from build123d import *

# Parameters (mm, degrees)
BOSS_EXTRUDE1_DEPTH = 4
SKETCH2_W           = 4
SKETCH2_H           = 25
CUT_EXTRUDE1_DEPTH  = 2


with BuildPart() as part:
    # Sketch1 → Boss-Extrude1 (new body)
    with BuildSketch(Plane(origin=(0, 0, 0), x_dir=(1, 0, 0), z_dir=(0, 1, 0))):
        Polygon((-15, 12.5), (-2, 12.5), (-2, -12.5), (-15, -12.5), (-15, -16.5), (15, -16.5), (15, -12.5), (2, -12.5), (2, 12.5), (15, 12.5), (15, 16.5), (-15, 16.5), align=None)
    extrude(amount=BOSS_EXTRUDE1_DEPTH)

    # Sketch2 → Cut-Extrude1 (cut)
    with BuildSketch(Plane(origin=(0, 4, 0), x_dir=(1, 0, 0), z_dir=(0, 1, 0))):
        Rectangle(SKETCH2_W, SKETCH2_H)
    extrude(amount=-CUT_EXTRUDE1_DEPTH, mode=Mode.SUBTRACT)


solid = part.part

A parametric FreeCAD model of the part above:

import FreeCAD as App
import Part
import Sketcher

doc = App.newDocument("Part")
body = doc.addObject("PartDesign::Body", "Body")

# Sketch on XZ plane
sketch1 = body.newObject("Sketcher::SketchObject", "Sketch")
sketch1.AttachmentSupport = (doc.getObject("XZ_Plane"), [""])
sketch1.MapMode = "FlatFace"
sketch1.addGeometry([
    Part.LineSegment(App.Vector(-15, -12.5, 0), App.Vector(-2, -12.5, 0)),  # 0
    Part.LineSegment(App.Vector(-2, -12.5, 0), App.Vector(-2, 12.5, 0)),  # 1
    Part.LineSegment(App.Vector(-2, 12.5, 0), App.Vector(-15, 12.5, 0)),  # 2
    Part.LineSegment(App.Vector(-15, 12.5, 0), App.Vector(-15, 16.5, 0)),  # 3
    Part.LineSegment(App.Vector(-15, 16.5, 0), App.Vector(15, 16.5, 0)),  # 4
    Part.LineSegment(App.Vector(15, 16.5, 0), App.Vector(15, 12.5, 0)),  # 5
    Part.LineSegment(App.Vector(15, 12.5, 0), App.Vector(2, 12.5, 0)),  # 6
    Part.LineSegment(App.Vector(2, 12.5, 0), App.Vector(2, -12.5, 0)),  # 7
    Part.LineSegment(App.Vector(2, -12.5, 0), App.Vector(15, -12.5, 0)),  # 8
    Part.LineSegment(App.Vector(15, -12.5, 0), App.Vector(15, -16.5, 0)),  # 9
    Part.LineSegment(App.Vector(15, -16.5, 0), App.Vector(-15, -16.5, 0)),  # 10
    Part.LineSegment(App.Vector(-15, -16.5, 0), App.Vector(-15, -12.5, 0)),  # 11
], False)
sketch1.addConstraint([
    Sketcher.Constraint("Coincident", 0, 2, 1, 1),
    Sketcher.Constraint("Coincident", 1, 2, 2, 1),
    Sketcher.Constraint("Coincident", 2, 2, 3, 1),
    Sketcher.Constraint("Coincident", 3, 2, 4, 1),
    Sketcher.Constraint("Coincident", 4, 2, 5, 1),
    Sketcher.Constraint("Coincident", 5, 2, 6, 1),
    Sketcher.Constraint("Coincident", 6, 2, 7, 1),
    Sketcher.Constraint("Coincident", 7, 2, 8, 1),
    Sketcher.Constraint("Coincident", 8, 2, 9, 1),
    Sketcher.Constraint("Coincident", 9, 2, 10, 1),
    Sketcher.Constraint("Coincident", 10, 2, 11, 1),
    Sketcher.Constraint("Coincident", 11, 2, 0, 1),
    Sketcher.Constraint("Horizontal", 0),
    Sketcher.Constraint("Vertical", 1),
    Sketcher.Constraint("Horizontal", 2),
    Sketcher.Constraint("Vertical", 3),
    Sketcher.Constraint("Horizontal", 4),
    Sketcher.Constraint("Vertical", 5),
    Sketcher.Constraint("Horizontal", 6),
    Sketcher.Constraint("Vertical", 7),
    Sketcher.Constraint("Horizontal", 8),
    Sketcher.Constraint("Vertical", 9),
    Sketcher.Constraint("Horizontal", 10),
    Sketcher.Constraint("Vertical", 11),
    Sketcher.Constraint("Symmetric", 0, 2, 6, 2, -1, 1),
    Sketcher.Constraint("Symmetric", 2, 2, 8, 2, -1, 1),
    Sketcher.Constraint("Symmetric", 4, 2, 10, 2, -1, 1),
    Sketcher.Constraint("Symmetric", 2, 2, 5, 2, -2),
    Sketcher.Constraint("DistanceX", 0, 1, 0, 2, 13.0),
    Sketcher.Constraint("DistanceX", 4, 1, 4, 2, 30.0),
    Sketcher.Constraint("DistanceY", 1, 1, 1, 2, 25.0),
    Sketcher.Constraint("DistanceY", 3, 1, 3, 2, 4.0),
])
pad1 = body.newObject("PartDesign::Pad", "Pad")
pad1.Profile = sketch1
pad1.Length = 4
pad1.Reversed = True

# Sketch on XZ plane
sketch2 = body.newObject("Sketcher::SketchObject", "Sketch001")
sketch2.AttachmentSupport = (doc.getObject("XZ_Plane"), [""])
sketch2.MapMode = "FlatFace"
sketch2.AttachmentOffset = App.Placement(App.Vector(0, 0, -4), App.Rotation())
sketch2.addGeometry([
    Part.LineSegment(App.Vector(-2, -12.5, 0), App.Vector(-2, 12.5, 0)),
    Part.LineSegment(App.Vector(-2, 12.5, 0), App.Vector(2, 12.5, 0)),
    Part.LineSegment(App.Vector(2, 12.5, 0), App.Vector(2, -12.5, 0)),
    Part.LineSegment(App.Vector(2, -12.5, 0), App.Vector(-2, -12.5, 0)),
], False)
sketch2.addConstraint([
    Sketcher.Constraint("Coincident", 0, 2, 1, 1),
    Sketcher.Constraint("Coincident", 1, 2, 2, 1),
    Sketcher.Constraint("Coincident", 2, 2, 3, 1),
    Sketcher.Constraint("Coincident", 3, 2, 0, 1),
    Sketcher.Constraint("Vertical", 0),
    Sketcher.Constraint("Horizontal", 1),
    Sketcher.Constraint("Vertical", 2),
    Sketcher.Constraint("Horizontal", 3),
    Sketcher.Constraint("Symmetric", 0, 2, 2, 2, -1, 1),
    Sketcher.Constraint("DistanceX", 1, 1, 1, 2, 4.0),
    Sketcher.Constraint("DistanceY", 0, 1, 0, 2, 25.0),
])
pocket1 = body.newObject("PartDesign::Pocket", "Pocket")
pocket1.Profile = sketch2
pocket1.Length = 2
pocket1.Reversed = True

doc.recompute()
